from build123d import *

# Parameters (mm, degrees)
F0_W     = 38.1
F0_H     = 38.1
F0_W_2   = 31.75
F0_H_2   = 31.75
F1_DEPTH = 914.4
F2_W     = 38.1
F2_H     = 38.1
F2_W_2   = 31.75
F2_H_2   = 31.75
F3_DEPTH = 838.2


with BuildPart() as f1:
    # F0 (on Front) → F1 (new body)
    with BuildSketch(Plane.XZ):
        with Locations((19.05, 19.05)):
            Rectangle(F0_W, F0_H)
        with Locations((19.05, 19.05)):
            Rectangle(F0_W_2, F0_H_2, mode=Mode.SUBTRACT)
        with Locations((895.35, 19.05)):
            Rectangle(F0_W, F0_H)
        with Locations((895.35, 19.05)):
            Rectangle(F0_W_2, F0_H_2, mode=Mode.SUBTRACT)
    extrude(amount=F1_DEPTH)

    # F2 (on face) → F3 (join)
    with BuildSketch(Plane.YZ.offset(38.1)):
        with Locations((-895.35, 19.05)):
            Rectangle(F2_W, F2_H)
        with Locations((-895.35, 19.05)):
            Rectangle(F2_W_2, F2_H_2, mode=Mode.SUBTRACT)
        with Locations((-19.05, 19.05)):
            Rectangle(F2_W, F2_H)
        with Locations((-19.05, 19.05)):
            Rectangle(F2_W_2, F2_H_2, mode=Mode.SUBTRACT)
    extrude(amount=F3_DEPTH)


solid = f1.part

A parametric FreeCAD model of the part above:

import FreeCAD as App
import Part
import Sketcher

V = App.Vector
Q = App.Units.Quantity

doc = App.newDocument("Part")
body = doc.addObject("PartDesign::Body", "Body")
body.AllowCompound = True

sketch1 = body.newObject("Sketcher::SketchObject", "Sketch")
sketch1.AttachmentSupport = (doc.getObject("XZ_Plane"), [""])
sketch1.MapMode = "FlatFace"
sketch1.addGeometry([
    Part.LineSegment(V(0, 38, 0), V(0, 0, 0)),
    Part.LineSegment(V(0, 0, 0), V(38, 0, 0)),
    Part.LineSegment(V(38, 0, 0), V(38, 38, 0)),
    Part.LineSegment(V(38, 38, 0), V(0, 38, 0)),
    Part.LineSegment(V(35, 3, 0), V(3, 3, 0)),
    Part.LineSegment(V(3, 3, 0), V(3, 35, 0)),
    Part.LineSegment(V(3, 35, 0), V(35, 35, 0)),
    Part.LineSegment(V(35, 35, 0), V(35, 3, 0)),
    Part.LineSegment(V(876, 38, 0), V(876, 0, 0)),
    Part.LineSegment(V(876, 0, 0), V(914, 0, 0)),
    Part.LineSegment(V(914, 0, 0), V(914, 38, 0)),
    Part.LineSegment(V(914, 38, 0), V(876, 38, 0)),
    Part.LineSegment(V(911, 3, 0), V(879, 3, 0)),
    Part.LineSegment(V(879, 3, 0), V(879, 35, 0)),
    Part.LineSegment(V(879, 35, 0), V(911, 35, 0)),
    Part.LineSegment(V(911, 35, 0), V(911, 3, 0)),
], False)
sketch1.addConstraint([
    Sketcher.Constraint("Coincident", 0, 2, 1, 1),
    Sketcher.Constraint("Coincident", 1, 2, 2, 1),
    Sketcher.Constraint("Coincident", 2, 2, 3, 1),
    Sketcher.Constraint("Coincident", 3, 2, 0, 1),
    Sketcher.Constraint("Coincident", 4, 2, 5, 1),
    Sketcher.Constraint("Coincident", 5, 2, 6, 1),
    Sketcher.Constraint("Coincident", 6, 2, 7, 1),
    Sketcher.Constraint("Coincident", 7, 2, 4, 1),
    Sketcher.Constraint("Coincident", 8, 2, 9, 1),
    Sketcher.Constraint("Coincident", 9, 2, 10, 1),
    Sketcher.Constraint("Coincident", 10, 2, 11, 1),
    Sketcher.Constraint("Coincident", 11, 2, 8, 1),
    Sketcher.Constraint("Coincident", 12, 2, 13, 1),
    Sketcher.Constraint("Coincident", 13, 2, 14, 1),
    Sketcher.Constraint("Coincident", 14, 2, 15, 1),
    Sketcher.Constraint("Coincident", 15, 2, 12, 1),
    Sketcher.Constraint("Vertical", 0),
    Sketcher.Constraint("Horizontal", 1),
    Sketcher.Constraint("Vertical", 2),
    Sketcher.Constraint("Horizontal", 3),
    Sketcher.Constraint("Horizontal", 4),
    Sketcher.Constraint("Vertical", 5),
    Sketcher.Constraint("Horizontal", 6),
    Sketcher.Constraint("Vertical", 7),
    Sketcher.Constraint("Vertical", 8),
    Sketcher.Constraint("Horizontal", 9),
    Sketcher.Constraint("Vertical", 10),
    Sketcher.Constraint("Horizontal", 11),
    Sketcher.Constraint("Horizontal", 12),
    Sketcher.Constraint("Vertical", 13),
    Sketcher.Constraint("Horizontal", 14),
    Sketcher.Constraint("Vertical", 15),
    Sketcher.Constraint("Coincident", 0, 2, -1, 1),
    Sketcher.Constraint("PointOnObject", 8, 2, -1),
    Sketcher.Constraint("Horizontal", 3, 2, 10, 2),
    Sketcher.Constraint("Horizontal", 7, 2, 12, 2),
    Sketcher.Constraint("Horizontal", 6, 2, 13, 2),
    Sketcher.Constraint("Equal", 3, 9),
    Sketcher.Constraint("Equal", 6, 12),
    Sketcher.Constraint("Equal", 11, 0),
    Sketcher.Constraint("Equal", 14, 5),
    Sketcher.Constraint("DistanceX", 1, 1, 1, 2, Q("1.5 in")),
    Sketcher.Constraint("DistanceX", -1, 1, 9, 2, Q("36 in")),
    Sketcher.Constraint("DistanceX", 4, 2, 4, 1, Q("1.25 in")),
    Sketcher.Constraint("DistanceX", -1, 1, 4, 2, Q("0.125 in")),
    Sketcher.Constraint("DistanceY", -1, 1, 4, 2, Q("0.125 in")),
    Sketcher.Constraint("DistanceX", -1, 1, 12, 2, Q("34.625 in")),
])
pad1 = body.newObject("PartDesign::Pad", "Pad")
pad1.Profile = sketch1
pad1.Length = Q("36 in")

sketch2 = body.newObject("Sketcher::SketchObject", "Sketch001")
sketch2.AttachmentSupport = (doc.getObject("YZ_Plane"), [""])
sketch2.MapMode = "FlatFace"
sketch2.AttachmentOffset = App.Placement(V(0, 0, 1.5 * 25.4), App.Rotation())
sketch2.addGeometry([
    Part.LineSegment(V(-914, 38, 0), V(-914, 0, 0)),
    Part.LineSegment(V(-914, 0, 0), V(-876, 0, 0)),
    Part.LineSegment(V(-876, 0, 0), V(-876, 38, 0)),
    Part.LineSegment(V(-876, 38, 0), V(-914, 38, 0)),
    Part.LineSegment(V(-879, 3, 0), V(-911, 3, 0)),
    Part.LineSegment(V(-911, 3, 0), V(-911, 35, 0)),
    Part.LineSegment(V(-911, 35, 0), V(-879, 35, 0)),
    Part.LineSegment(V(-879, 35, 0), V(-879, 3, 0)),
    Part.LineSegment(V(-38, 38, 0), V(-38, 0, 0)),
    Part.LineSegment(V(-38, 0, 0), V(0, 0, 0)),
    Part.LineSegment(V(0, 0, 0), V(0, 38, 0)),
    Part.LineSegment(V(0, 38, 0), V(-38, 38, 0)),
    Part.LineSegment(V(-3, 3, 0), V(-35, 3, 0)),
    Part.LineSegment(V(-35, 3, 0), V(-35, 35, 0)),
    Part.LineSegment(V(-35, 35, 0), V(-3, 35, 0)),
    Part.LineSegment(V(-3, 35, 0), V(-3, 3, 0)),
], False)
sketch2.addConstraint([
    Sketcher.Constraint("Coincident", 0, 2, 1, 1),
    Sketcher.Constraint("Coincident", 1, 2, 2, 1),
    Sketcher.Constraint("Coincident", 2, 2, 3, 1),
    Sketcher.Constraint("Coincident", 3, 2, 0, 1),
    Sketcher.Constraint("Coincident", 4, 2, 5, 1),
    Sketcher.Constraint("Coincident", 5, 2, 6, 1),
    Sketcher.Constraint("Coincident", 6, 2, 7, 1),
    Sketcher.Constraint("Coincident", 7, 2, 4, 1),
    Sketcher.Constraint("Coincident", 8, 2, 9, 1),
    Sketcher.Constraint("Coincident", 9, 2, 10, 1),
    Sketcher.Constraint("Coincident", 10, 2, 11, 1),
    Sketcher.Constraint("Coincident", 11, 2, 8, 1),
    Sketcher.Constraint("Coincident", 12, 2, 13, 1),
    Sketcher.Constraint("Coincident", 13, 2, 14, 1),
    Sketcher.Constraint("Coincident", 14, 2, 15, 1),
    Sketcher.Constraint("Coincident", 15, 2, 12, 1),
    Sketcher.Constraint("Vertical", 0),
    Sketcher.Constraint("Horizontal", 1),
    Sketcher.Constraint("Vertical", 2),
    Sketcher.Constraint("Horizontal", 3),
    Sketcher.Constraint("Horizontal", 4),
    Sketcher.Constraint("Vertical", 5),
    Sketcher.Constraint("Horizontal", 6),
    Sketcher.Constraint("Vertical", 7),
    Sketcher.Constraint("Vertical", 8),
    Sketcher.Constraint("Horizontal", 9),
    Sketcher.Constraint("Vertical", 10),
    Sketcher.Constraint("Horizontal", 11),
    Sketcher.Constraint("Horizontal", 12),
    Sketcher.Constraint("Vertical", 13),
    Sketcher.Constraint("Horizontal", 14),
    Sketcher.Constraint("Vertical", 15),
    Sketcher.Constraint("Coincident", 9, 2, -1, 1),
    Sketcher.Constraint("PointOnObject", 0, 2, -1),
    Sketcher.Constraint("Horizontal", 3, 2, 10, 2),
    Sketcher.Constraint("Horizontal", 7, 2, 12, 2),
    Sketcher.Constraint("Horizontal", 6, 2, 13, 2),
    Sketcher.Constraint("Equal", 3, 9),
    Sketcher.Constraint("Equal", 6, 12),
    Sketcher.Constraint("Equal", 11, 0),
    Sketcher.Constraint("Equal", 14, 5),
    Sketcher.Constraint("DistanceX", 1, 1, 1, 2, Q("1.5 in")),
    Sketcher.Constraint("DistanceX", 0, 2, -1, 1, Q("36 in")),
    Sketcher.Constraint("DistanceX", 4, 2, 4, 1, Q("1.25 in")),
    Sketcher.Constraint("DistanceX", 4, 2, -1, 1, Q("35.875 in")),
    Sketcher.Constraint("DistanceY", -1, 1, 4, 2, Q("0.125 in")),
    Sketcher.Constraint("DistanceX", 12, 2, -1, 1, Q("1.375 in")),
])
pad2 = body.newObject("PartDesign::Pad", "Pad001")
pad2.Profile = sketch2
pad2.Length = Q("33 in")

doc.recompute()
